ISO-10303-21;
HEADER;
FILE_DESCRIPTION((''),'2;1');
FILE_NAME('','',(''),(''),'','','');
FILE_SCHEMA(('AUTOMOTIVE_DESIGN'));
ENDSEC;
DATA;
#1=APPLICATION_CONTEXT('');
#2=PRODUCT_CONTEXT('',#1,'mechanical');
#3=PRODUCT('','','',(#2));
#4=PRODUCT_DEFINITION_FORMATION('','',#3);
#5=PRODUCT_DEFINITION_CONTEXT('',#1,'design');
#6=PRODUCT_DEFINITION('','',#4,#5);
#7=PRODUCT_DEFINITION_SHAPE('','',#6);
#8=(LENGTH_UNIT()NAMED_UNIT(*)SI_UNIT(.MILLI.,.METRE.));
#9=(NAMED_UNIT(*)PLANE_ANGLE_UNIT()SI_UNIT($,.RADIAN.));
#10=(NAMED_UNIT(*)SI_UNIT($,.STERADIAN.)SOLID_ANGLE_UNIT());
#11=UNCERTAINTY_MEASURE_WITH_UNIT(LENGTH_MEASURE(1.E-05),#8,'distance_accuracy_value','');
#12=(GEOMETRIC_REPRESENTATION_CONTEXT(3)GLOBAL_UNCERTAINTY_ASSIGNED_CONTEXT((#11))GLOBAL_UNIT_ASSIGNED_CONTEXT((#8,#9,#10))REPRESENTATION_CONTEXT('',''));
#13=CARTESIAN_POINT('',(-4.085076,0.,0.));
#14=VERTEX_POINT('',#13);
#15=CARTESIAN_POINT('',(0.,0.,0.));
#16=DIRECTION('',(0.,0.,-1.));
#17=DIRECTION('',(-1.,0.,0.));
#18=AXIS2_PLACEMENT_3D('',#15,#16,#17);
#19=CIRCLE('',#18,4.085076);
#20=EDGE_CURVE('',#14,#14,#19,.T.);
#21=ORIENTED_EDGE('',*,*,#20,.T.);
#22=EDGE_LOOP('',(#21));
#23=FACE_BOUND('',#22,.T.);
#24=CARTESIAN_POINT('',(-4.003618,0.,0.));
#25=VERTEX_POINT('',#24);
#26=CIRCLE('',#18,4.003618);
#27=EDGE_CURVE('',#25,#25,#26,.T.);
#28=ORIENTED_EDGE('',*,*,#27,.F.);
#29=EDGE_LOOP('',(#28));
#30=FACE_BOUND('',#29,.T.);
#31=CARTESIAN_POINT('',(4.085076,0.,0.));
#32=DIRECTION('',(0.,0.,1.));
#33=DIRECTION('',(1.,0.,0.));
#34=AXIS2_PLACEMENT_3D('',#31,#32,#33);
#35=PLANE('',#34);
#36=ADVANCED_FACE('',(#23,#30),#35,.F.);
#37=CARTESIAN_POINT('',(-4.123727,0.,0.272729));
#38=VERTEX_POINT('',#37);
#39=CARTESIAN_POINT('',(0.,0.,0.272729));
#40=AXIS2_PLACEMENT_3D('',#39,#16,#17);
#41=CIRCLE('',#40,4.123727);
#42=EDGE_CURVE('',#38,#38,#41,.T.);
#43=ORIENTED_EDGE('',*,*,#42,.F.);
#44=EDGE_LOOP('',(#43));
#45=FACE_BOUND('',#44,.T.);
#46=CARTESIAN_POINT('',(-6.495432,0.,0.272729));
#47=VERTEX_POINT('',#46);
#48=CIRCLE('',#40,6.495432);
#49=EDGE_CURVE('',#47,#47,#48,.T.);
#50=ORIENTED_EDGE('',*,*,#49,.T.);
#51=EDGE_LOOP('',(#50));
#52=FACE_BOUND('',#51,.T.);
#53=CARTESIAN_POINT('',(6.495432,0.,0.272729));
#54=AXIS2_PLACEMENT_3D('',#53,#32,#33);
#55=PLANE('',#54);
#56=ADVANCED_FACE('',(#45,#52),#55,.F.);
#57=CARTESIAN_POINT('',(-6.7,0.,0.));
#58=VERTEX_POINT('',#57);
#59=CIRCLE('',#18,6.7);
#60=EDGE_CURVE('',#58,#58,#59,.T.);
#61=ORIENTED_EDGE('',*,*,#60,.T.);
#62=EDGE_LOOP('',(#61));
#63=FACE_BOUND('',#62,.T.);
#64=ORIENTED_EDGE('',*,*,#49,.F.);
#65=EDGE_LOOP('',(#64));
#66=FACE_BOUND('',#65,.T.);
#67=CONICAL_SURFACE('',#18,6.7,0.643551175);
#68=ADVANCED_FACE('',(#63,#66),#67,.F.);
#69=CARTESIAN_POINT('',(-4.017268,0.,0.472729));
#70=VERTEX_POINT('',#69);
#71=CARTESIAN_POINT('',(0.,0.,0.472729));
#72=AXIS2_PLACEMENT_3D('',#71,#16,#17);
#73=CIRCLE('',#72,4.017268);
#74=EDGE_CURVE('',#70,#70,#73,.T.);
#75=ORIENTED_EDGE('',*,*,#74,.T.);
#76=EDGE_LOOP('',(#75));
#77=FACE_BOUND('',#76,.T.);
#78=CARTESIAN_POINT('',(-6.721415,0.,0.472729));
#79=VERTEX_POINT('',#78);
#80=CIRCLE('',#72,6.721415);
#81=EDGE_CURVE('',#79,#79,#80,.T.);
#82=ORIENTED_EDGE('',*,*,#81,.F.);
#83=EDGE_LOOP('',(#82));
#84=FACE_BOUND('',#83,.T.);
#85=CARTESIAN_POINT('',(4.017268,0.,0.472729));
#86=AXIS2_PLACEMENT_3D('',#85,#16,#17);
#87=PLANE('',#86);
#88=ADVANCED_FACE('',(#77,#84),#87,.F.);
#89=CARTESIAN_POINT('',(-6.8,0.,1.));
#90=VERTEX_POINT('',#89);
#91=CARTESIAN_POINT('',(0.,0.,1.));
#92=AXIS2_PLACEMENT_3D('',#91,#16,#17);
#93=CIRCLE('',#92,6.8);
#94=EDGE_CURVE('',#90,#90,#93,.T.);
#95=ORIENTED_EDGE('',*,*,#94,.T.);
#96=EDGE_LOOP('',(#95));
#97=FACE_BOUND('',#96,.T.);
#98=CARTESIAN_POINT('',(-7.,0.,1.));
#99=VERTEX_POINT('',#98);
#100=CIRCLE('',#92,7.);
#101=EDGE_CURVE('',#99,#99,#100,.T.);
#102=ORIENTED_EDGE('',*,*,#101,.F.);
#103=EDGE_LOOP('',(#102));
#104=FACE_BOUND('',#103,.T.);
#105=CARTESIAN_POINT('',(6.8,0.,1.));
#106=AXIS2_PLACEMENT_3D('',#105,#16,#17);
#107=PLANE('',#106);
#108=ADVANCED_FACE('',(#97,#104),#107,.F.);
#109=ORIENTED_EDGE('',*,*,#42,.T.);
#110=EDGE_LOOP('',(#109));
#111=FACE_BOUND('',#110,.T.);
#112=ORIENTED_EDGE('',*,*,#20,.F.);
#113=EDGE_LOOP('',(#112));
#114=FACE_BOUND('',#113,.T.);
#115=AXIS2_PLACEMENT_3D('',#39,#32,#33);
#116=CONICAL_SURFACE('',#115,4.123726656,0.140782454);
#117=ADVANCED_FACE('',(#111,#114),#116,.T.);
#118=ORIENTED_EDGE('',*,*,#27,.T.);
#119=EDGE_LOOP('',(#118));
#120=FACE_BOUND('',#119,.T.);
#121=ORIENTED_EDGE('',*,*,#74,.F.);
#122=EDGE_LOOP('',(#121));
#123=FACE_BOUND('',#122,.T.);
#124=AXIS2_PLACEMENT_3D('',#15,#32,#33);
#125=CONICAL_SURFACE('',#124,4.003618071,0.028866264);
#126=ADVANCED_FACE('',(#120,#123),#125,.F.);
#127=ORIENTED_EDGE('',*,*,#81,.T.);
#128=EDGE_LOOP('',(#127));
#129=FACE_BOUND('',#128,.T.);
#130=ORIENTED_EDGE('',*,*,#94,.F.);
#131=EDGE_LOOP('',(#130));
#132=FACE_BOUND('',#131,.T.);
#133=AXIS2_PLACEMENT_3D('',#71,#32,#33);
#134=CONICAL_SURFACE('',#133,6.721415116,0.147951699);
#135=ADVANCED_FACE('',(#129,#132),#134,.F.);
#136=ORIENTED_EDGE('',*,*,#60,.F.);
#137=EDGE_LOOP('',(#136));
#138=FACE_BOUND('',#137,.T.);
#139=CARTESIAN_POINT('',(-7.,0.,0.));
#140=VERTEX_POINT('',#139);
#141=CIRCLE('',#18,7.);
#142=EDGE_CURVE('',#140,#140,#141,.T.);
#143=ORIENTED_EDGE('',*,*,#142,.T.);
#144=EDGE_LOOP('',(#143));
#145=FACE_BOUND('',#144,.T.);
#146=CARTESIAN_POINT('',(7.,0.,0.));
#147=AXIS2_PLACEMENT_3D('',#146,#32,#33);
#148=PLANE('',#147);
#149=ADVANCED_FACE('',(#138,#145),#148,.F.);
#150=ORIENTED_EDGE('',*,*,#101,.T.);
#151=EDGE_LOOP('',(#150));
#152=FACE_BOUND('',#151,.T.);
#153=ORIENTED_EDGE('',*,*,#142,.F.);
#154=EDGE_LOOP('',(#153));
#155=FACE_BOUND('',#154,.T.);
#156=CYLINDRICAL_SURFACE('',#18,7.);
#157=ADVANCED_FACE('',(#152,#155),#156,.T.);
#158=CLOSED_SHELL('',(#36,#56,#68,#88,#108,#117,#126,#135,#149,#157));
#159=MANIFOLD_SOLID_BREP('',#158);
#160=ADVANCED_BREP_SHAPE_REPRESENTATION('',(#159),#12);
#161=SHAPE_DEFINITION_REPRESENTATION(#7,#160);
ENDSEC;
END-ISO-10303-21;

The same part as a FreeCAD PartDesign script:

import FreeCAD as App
import Part
import Sketcher

doc = App.newDocument("Part")
body = doc.addObject("PartDesign::Body", "Body")

# Sketch on XZ plane
sketch1 = body.newObject("Sketcher::SketchObject", "Sketch")
sketch1.AttachmentSupport = (doc.getObject("XZ_Plane"), [""])
sketch1.MapMode = "FlatFace"
sketch1.addGeometry(Part.LineSegment(App.Vector(6.72, 0.47, 0), App.Vector(6.8, 1, 0)), False)
sketch1.addGeometry(Part.LineSegment(App.Vector(6.8, 1, 0), App.Vector(7, 1, 0)), False)
sketch1.addGeometry(Part.LineSegment(App.Vector(7, 1, 0), App.Vector(7, 0, 0)), False)
sketch1.addGeometry(Part.LineSegment(App.Vector(7, 0, 0), App.Vector(6.7, 0, 0)), False)
sketch1.addGeometry(Part.LineSegment(App.Vector(6.7, 0, 0), App.Vector(6.5, 0.27, 0)), False)
sketch1.addGeometry(Part.LineSegment(App.Vector(6.5, 0.27, 0), App.Vector(4.12, 0.27, 0)), False)
sketch1.addGeometry(Part.LineSegment(App.Vector(4.12, 0.27, 0), App.Vector(4.09, 0, 0)), False)
sketch1.addGeometry(Part.LineSegment(App.Vector(4.09, 0, 0), App.Vector(4, 0, 0)), False)
sketch1.addGeometry(Part.LineSegment(App.Vector(4, 0, 0), App.Vector(4.02, 0.47, 0)), False)
sketch1.addGeometry(Part.LineSegment(App.Vector(4.02, 0.47, 0), App.Vector(6.72, 0.47, 0)), False)
sketch1.addConstraint(Sketcher.Constraint("Coincident", 0, 2, 1, 1))
sketch1.addConstraint(Sketcher.Constraint("Coincident", 1, 2, 2, 1))
sketch1.addConstraint(Sketcher.Constraint("Coincident", 2, 2, 3, 1))
sketch1.addConstraint(Sketcher.Constraint("Coincident", 3, 2, 4, 1))
sketch1.addConstraint(Sketcher.Constraint("Coincident", 4, 2, 5, 1))
sketch1.addConstraint(Sketcher.Constraint("Coincident", 5, 2, 6, 1))
sketch1.addConstraint(Sketcher.Constraint("Coincident", 6, 2, 7, 1))
sketch1.addConstraint(Sketcher.Constraint("Coincident", 7, 2, 8, 1))
sketch1.addConstraint(Sketcher.Constraint("Coincident", 8, 2, 9, 1))
sketch1.addConstraint(Sketcher.Constraint("Coincident", 9, 2, 0, 1))
sketch1.addConstraint(Sketcher.Constraint("Horizontal", 1))
sketch1.addConstraint(Sketcher.Constraint("Vertical", 2))
sketch1.addConstraint(Sketcher.Constraint("Horizontal", 3))
sketch1.addConstraint(Sketcher.Constraint("Horizontal", 5))
sketch1.addConstraint(Sketcher.Constraint("Horizontal", 7))
sketch1.addConstraint(Sketcher.Constraint("Horizontal", 9))
sketch1.addConstraint(Sketcher.Constraint("PointOnObject", 2, 2, -1))
sketch1.addConstraint(Sketcher.Constraint("PointOnObject", 6, 2, -1))
sketch1.addConstraint(Sketcher.Constraint("DistanceY", 2, 2, 2, 1, 1.0))
sketch1.addConstraint(Sketcher.Constraint("DistanceX", 1, 1, 1, 2, 0.2))
sketch1.addConstraint(Sketcher.Constraint("DistanceX", 3, 2, 3, 1, 0.3))
sketch1.addConstraint(Sketcher.Constraint("DistanceX", -1, 1, 1, 2, 7.0))
sketch1.addConstraint(Sketcher.Constraint("DistanceY", 5, 2, 8, 2, 0.2))
sketch1.addConstraint(Sketcher.Constraint("DistanceX", 5, 2, 5, 1, 2.371705))
sketch1.addConstraint(Sketcher.Constraint("DistanceX", 7, 2, 7, 1, 0.081457))
sketch1.addConstraint(Sketcher.Constraint("DistanceX", 9, 1, 9, 2, 2.704147))
sketch1.addConstraint(Sketcher.Constraint("DistanceX", -1, 1, 4, 2, 6.495432))
sketch1.addConstraint(Sketcher.Constraint("DistanceY", -1, 1, 4, 2, 0.272729))
sketch1.addConstraint(Sketcher.Constraint("DistanceX", -1, 1, 7, 2, 4.003618))
sketch1.addConstraint(Sketcher.Constraint("DistanceX", 8, 2, 5, 2, 0.106459))
revolution = body.newObject("PartDesign::Revolution", "Revolution")
revolution.Profile = sketch1
revolution.ReferenceAxis = (sketch1, ["V_Axis"])
revolution.Angle = 360

doc.recompute()
